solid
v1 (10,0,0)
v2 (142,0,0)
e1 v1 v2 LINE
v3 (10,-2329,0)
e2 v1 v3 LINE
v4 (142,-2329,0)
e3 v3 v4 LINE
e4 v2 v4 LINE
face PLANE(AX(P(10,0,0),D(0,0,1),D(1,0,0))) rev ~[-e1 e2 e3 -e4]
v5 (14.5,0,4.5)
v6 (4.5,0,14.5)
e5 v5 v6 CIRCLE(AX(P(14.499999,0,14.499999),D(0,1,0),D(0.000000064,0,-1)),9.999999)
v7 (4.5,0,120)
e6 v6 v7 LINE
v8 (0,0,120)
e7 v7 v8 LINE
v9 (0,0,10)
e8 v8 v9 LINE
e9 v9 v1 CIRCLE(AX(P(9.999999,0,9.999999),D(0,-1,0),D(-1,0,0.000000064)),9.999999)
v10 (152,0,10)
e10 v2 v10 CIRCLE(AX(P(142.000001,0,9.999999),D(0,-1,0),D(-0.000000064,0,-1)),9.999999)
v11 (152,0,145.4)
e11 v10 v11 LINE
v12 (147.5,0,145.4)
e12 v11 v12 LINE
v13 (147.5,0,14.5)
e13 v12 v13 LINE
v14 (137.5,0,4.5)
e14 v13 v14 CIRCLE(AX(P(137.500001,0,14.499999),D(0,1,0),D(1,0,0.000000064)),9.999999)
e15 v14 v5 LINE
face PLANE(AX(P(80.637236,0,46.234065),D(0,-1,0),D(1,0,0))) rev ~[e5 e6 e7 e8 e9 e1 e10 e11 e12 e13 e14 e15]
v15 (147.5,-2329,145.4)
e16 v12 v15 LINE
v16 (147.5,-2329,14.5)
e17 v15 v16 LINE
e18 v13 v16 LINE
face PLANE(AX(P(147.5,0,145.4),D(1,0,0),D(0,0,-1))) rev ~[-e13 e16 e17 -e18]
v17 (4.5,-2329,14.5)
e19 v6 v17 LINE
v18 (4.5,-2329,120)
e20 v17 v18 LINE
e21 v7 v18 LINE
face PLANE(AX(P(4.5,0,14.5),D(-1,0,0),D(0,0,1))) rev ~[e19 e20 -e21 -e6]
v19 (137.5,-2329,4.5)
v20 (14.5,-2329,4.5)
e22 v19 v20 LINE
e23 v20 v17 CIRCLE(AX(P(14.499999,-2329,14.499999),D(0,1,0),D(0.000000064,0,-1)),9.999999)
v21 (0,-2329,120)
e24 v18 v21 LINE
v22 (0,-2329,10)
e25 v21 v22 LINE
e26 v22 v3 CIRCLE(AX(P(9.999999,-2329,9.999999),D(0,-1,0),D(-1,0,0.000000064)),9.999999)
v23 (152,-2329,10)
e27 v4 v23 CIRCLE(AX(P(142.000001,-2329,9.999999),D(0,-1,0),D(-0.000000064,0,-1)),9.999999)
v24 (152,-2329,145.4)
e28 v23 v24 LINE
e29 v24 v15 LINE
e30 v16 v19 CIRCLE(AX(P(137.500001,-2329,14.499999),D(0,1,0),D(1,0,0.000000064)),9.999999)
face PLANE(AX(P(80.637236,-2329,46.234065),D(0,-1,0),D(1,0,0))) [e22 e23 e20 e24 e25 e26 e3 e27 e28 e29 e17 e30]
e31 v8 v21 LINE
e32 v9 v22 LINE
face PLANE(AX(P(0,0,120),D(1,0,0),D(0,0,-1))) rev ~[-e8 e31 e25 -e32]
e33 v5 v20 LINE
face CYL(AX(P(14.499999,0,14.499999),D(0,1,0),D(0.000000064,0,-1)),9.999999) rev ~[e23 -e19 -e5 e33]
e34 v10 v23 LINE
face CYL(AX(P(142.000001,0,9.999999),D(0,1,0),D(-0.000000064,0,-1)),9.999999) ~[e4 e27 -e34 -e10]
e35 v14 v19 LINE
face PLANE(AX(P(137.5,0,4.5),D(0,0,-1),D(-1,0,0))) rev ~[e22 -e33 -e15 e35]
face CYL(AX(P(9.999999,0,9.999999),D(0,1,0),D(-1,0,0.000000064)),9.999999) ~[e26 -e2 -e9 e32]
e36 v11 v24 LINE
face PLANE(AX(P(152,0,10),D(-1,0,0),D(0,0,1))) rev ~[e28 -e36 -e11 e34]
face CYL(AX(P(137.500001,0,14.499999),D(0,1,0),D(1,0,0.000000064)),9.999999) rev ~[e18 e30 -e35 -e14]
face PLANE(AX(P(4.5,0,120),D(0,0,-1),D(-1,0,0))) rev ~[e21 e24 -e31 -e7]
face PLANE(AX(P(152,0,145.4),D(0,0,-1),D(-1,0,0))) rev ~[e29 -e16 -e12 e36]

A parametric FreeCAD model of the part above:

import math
import FreeCAD as App
import Part
import Sketcher
from FreeCAD import Vector
Q = App.Units.Quantity

doc = App.newDocument("Part")
body = doc.addObject("PartDesign::Body", "Body")

# Sketch on XZ plane
sketch1 = body.newObject("Sketcher::SketchObject", "Sketch")
sketch1.AttachmentSupport = (doc.getObject("XZ_Plane"), [""])
sketch1.MapMode = "FlatFace"
sketch1.addGeometry(Part.ArcOfCircle(Part.Circle(Vector(9.999999, 9.999999, 0), Vector(0, 0, 1), 9.999999), math.radians(179.999996), math.radians(270.000004)), False)
sketch1.addGeometry(Part.LineSegment(Vector(10, 0, 0), Vector(142, 0, 0)), False)
sketch1.addGeometry(Part.ArcOfCircle(Part.Circle(Vector(142.000001, 9.999999, 0), Vector(0, 0, 1), 9.999999), math.radians(-90.000004), math.radians(0.000004)), False)
sketch1.addGeometry(Part.LineSegment(Vector(152, 10, 0), Vector(152, 145.4, 0)), False)
sketch1.addGeometry(Part.LineSegment(Vector(152, 145.4, 0), Vector(147.5, 145.4, 0)), False)
sketch1.addGeometry(Part.LineSegment(Vector(147.5, 145.4, 0), Vector(147.5, 14.5, 0)), False)
sketch1.addGeometry(Part.ArcOfCircle(Part.Circle(Vector(137.500001, 14.499999, 0), Vector(0, 0, 1), 9.999999), math.radians(-90.000004), math.radians(0.000004)), False)
sketch1.addGeometry(Part.LineSegment(Vector(137.5, 4.5, 0), Vector(14.5, 4.5, 0)), False)
sketch1.addGeometry(Part.ArcOfCircle(Part.Circle(Vector(14.499999, 14.499999, 0), Vector(0, 0, 1), 9.999999), math.radians(179.999996), math.radians(270.000004)), False)
sketch1.addGeometry(Part.LineSegment(Vector(4.5, 14.5, 0), Vector(4.5, 120, 0)), False)
sketch1.addGeometry(Part.LineSegment(Vector(4.5, 120, 0), Vector(0, 120, 0)), False)
sketch1.addGeometry(Part.LineSegment(Vector(0, 120, 0), Vector(0, 10, 0)), False)
sketch1.addConstraint(Sketcher.Constraint("Tangent", 0, 2, 1, 1))
sketch1.addConstraint(Sketcher.Constraint("Tangent", 1, 2, 2, 1))
sketch1.addConstraint(Sketcher.Constraint("Tangent", 2, 2, 3, 1))
sketch1.addConstraint(Sketcher.Constraint("Coincident", 3, 2, 4, 1))
sketch1.addConstraint(Sketcher.Constraint("Coincident", 4, 2, 5, 1))
sketch1.addConstraint(Sketcher.Constraint("Tangent", 5, 2, 6, 2))
sketch1.addConstraint(Sketcher.Constraint("Tangent", 6, 1, 7, 1))
sketch1.addConstraint(Sketcher.Constraint("Tangent", 7, 2, 8, 2))
sketch1.addConstraint(Sketcher.Constraint("Tangent", 8, 1, 9, 1))
sketch1.addConstraint(Sketcher.Constraint("Coincident", 9, 2, 10, 1))
sketch1.addConstraint(Sketcher.Constraint("Coincident", 10, 2, 11, 1))
sketch1.addConstraint(Sketcher.Constraint("Tangent", 11, 2, 0, 1))
sketch1.addConstraint(Sketcher.Constraint("Horizontal", 1))
sketch1.addConstraint(Sketcher.Constraint("Vertical", 3))
sketch1.addConstraint(Sketcher.Constraint("Horizontal", 4))
sketch1.addConstraint(Sketcher.Constraint("Vertical", 5))
sketch1.addConstraint(Sketcher.Constraint("Horizontal", 7))
sketch1.addConstraint(Sketcher.Constraint("Vertical", 9))
sketch1.addConstraint(Sketcher.Constraint("Horizontal", 10))
sketch1.addConstraint(Sketcher.Constraint("Vertical", 11))
sketch1.addConstraint(Sketcher.Constraint("Equal", 0, 2))
sketch1.addConstraint(Sketcher.Constraint("Equal", 2, 6))
sketch1.addConstraint(Sketcher.Constraint("Equal", 6, 8))
sketch1.addConstraint(Sketcher.Constraint("PointOnObject", 0, 2, -1))
sketch1.addConstraint(Sketcher.Constraint("PointOnObject", 10, 2, -2))
sketch1.addConstraint(Sketcher.Constraint("Equal", 4, 10))
sketch1.addConstraint(Sketcher.Constraint("Radius", 0, Q("9.999999 mm")))
sketch1.addConstraint(Sketcher.Constraint("DistanceX", 1, 1, 1, 2, Q("132 mm")))
sketch1.addConstraint(Sketcher.Constraint("DistanceX", 7, 2, 7, 1, Q("123 mm")))
sketch1.addConstraint(Sketcher.Constraint("DistanceY", 11, 2, 11, 1, Q("110 mm")))
sketch1.addConstraint(Sketcher.Constraint("DistanceY", 3, 1, 3, 2, Q("135.4 mm")))
sketch1.addConstraint(Sketcher.Constraint("DistanceY", 5, 2, 5, 1, Q("130.9 mm")))
pad1 = body.newObject("PartDesign::Pad", "Pad")
pad1.Profile = sketch1
pad1.Length = 2329

doc.recompute()
